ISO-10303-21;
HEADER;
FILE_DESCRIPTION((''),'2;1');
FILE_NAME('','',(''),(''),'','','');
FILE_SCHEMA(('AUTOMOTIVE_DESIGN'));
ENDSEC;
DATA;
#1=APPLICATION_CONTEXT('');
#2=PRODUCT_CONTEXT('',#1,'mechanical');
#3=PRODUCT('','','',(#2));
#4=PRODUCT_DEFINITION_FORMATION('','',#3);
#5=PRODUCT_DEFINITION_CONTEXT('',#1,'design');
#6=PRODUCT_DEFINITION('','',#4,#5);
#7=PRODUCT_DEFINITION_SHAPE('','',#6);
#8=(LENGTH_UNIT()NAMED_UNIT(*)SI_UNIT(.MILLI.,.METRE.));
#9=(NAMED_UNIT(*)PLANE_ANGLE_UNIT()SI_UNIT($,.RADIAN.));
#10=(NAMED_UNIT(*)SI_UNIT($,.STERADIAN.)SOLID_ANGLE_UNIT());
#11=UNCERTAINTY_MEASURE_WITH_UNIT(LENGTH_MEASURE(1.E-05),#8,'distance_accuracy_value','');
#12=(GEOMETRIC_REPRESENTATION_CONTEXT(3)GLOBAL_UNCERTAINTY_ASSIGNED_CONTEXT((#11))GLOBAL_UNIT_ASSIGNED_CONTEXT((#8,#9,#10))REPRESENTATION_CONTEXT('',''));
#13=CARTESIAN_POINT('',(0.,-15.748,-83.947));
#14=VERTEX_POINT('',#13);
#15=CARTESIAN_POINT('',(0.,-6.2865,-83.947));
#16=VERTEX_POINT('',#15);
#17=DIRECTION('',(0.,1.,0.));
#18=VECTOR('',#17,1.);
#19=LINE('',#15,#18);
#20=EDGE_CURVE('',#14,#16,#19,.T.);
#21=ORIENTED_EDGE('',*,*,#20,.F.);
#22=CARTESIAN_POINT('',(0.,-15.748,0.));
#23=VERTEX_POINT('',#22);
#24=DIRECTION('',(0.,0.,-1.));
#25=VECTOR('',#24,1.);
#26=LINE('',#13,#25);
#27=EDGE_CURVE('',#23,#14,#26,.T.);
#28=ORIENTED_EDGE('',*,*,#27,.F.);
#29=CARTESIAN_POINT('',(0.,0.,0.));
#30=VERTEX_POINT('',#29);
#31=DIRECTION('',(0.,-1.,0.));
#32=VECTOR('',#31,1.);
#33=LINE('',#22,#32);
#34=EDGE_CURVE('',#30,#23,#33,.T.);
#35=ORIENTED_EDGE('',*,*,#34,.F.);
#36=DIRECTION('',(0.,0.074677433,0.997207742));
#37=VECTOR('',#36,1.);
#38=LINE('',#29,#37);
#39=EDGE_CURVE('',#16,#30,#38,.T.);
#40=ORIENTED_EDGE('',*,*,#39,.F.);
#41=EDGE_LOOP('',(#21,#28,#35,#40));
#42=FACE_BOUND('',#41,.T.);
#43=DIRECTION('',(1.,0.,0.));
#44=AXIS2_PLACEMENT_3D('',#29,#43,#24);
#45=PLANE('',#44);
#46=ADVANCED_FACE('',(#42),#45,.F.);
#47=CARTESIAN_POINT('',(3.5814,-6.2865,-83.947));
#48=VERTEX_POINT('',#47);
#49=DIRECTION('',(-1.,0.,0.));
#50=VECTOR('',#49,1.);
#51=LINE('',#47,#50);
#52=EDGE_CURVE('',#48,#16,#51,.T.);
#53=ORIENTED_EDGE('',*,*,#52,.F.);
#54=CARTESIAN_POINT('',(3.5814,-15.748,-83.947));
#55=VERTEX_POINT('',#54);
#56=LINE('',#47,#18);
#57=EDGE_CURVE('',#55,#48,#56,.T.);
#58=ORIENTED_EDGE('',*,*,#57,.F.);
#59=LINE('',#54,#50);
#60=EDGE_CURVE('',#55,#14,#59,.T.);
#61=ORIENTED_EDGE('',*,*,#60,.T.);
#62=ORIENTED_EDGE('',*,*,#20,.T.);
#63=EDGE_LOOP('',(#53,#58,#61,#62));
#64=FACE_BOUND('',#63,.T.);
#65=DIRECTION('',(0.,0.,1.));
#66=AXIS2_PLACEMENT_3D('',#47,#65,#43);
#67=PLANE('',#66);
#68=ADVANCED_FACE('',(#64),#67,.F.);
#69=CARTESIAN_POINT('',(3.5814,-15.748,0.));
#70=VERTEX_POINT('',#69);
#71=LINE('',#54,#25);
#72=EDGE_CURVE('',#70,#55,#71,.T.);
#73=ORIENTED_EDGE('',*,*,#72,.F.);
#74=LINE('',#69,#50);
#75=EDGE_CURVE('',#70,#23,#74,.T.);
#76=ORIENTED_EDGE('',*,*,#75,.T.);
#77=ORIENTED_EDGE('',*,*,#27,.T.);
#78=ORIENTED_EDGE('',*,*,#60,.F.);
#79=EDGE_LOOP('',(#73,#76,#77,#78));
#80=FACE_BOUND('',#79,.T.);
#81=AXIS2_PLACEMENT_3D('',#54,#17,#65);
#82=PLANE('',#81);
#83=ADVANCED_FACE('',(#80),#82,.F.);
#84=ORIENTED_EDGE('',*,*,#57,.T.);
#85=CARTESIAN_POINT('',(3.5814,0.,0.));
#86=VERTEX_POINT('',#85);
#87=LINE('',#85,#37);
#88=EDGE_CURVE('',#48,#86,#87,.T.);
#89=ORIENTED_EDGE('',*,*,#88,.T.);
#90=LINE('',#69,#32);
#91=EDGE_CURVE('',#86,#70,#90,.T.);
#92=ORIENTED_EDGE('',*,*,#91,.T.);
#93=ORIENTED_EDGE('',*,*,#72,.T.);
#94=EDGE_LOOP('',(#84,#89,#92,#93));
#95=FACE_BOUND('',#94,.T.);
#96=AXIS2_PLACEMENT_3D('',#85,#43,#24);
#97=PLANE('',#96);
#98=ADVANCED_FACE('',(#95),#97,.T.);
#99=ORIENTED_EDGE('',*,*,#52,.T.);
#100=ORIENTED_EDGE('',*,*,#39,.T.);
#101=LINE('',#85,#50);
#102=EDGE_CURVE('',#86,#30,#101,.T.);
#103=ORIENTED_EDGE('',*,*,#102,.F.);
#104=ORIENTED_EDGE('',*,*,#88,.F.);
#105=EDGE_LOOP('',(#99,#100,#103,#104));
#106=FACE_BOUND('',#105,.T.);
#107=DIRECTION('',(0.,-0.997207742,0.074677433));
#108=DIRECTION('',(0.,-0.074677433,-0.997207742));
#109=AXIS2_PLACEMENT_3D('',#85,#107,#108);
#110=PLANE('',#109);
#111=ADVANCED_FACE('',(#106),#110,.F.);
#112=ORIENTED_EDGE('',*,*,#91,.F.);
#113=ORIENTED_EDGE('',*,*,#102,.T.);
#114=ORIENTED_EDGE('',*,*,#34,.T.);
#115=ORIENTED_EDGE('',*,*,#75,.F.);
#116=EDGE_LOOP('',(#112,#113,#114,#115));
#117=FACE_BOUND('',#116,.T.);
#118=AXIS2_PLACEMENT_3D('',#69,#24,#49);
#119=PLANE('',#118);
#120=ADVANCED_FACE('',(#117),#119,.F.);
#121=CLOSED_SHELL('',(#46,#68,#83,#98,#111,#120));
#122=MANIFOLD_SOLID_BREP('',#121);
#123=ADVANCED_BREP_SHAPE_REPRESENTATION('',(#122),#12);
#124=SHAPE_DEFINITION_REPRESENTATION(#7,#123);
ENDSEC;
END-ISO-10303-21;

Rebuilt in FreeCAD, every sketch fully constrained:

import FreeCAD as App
import Part
import Sketcher

V = App.Vector
Q = App.Units.Quantity


def add_polygon(sketch, points):
    """Adds a closed chain of lines whose ends are joined by coincident constraints."""
    first, n = sketch.GeometryCount, len(points)
    for a, b in zip(points, points[1:] + points[:1]):
        sketch.addGeometry(Part.LineSegment(App.Vector(*a, 0), App.Vector(*b, 0)), False)
    for i in range(n):
        sketch.addConstraint(Sketcher.Constraint("Coincident", first + i, 2, first + (i + 1) % n, 1))

doc = App.newDocument("Part")
body = doc.addObject("PartDesign::Body", "Body")

# Sketch on YZ plane
sketch1 = doc.addObject("Sketcher::SketchObject", "Sketch")
body.addObject(sketch1)
sketch1.AttachmentSupport = (doc.YZ_Plane, [""])
sketch1.MapMode = "FlatFace"
add_polygon(sketch1, [(-6.2865, -83.947), (0, 0), (-15.748, 0), (-15.748, -83.947)])  # lines 0-3
sketch1.addConstraint([
    Sketcher.Constraint("Horizontal", 1),
    Sketcher.Constraint("Vertical", 2),
    Sketcher.Constraint("Horizontal", 3),
    Sketcher.Constraint("Coincident", 0, 2, -1, 1),
    Sketcher.Constraint("DistanceX", 1, 2, 1, 1, Q("0.62 in")),
    Sketcher.Constraint("DistanceY", 2, 2, 2, 1, Q("3.305 in")),
    Sketcher.Constraint("DistanceX", 3, 1, 3, 2, Q("0.3725 in")),
])
pad1 = doc.addObject("PartDesign::Pad", "Pad")
body.addObject(pad1)
pad1.Profile = sketch1
pad1.Length = Q("0.141 in")

doc.recompute()
